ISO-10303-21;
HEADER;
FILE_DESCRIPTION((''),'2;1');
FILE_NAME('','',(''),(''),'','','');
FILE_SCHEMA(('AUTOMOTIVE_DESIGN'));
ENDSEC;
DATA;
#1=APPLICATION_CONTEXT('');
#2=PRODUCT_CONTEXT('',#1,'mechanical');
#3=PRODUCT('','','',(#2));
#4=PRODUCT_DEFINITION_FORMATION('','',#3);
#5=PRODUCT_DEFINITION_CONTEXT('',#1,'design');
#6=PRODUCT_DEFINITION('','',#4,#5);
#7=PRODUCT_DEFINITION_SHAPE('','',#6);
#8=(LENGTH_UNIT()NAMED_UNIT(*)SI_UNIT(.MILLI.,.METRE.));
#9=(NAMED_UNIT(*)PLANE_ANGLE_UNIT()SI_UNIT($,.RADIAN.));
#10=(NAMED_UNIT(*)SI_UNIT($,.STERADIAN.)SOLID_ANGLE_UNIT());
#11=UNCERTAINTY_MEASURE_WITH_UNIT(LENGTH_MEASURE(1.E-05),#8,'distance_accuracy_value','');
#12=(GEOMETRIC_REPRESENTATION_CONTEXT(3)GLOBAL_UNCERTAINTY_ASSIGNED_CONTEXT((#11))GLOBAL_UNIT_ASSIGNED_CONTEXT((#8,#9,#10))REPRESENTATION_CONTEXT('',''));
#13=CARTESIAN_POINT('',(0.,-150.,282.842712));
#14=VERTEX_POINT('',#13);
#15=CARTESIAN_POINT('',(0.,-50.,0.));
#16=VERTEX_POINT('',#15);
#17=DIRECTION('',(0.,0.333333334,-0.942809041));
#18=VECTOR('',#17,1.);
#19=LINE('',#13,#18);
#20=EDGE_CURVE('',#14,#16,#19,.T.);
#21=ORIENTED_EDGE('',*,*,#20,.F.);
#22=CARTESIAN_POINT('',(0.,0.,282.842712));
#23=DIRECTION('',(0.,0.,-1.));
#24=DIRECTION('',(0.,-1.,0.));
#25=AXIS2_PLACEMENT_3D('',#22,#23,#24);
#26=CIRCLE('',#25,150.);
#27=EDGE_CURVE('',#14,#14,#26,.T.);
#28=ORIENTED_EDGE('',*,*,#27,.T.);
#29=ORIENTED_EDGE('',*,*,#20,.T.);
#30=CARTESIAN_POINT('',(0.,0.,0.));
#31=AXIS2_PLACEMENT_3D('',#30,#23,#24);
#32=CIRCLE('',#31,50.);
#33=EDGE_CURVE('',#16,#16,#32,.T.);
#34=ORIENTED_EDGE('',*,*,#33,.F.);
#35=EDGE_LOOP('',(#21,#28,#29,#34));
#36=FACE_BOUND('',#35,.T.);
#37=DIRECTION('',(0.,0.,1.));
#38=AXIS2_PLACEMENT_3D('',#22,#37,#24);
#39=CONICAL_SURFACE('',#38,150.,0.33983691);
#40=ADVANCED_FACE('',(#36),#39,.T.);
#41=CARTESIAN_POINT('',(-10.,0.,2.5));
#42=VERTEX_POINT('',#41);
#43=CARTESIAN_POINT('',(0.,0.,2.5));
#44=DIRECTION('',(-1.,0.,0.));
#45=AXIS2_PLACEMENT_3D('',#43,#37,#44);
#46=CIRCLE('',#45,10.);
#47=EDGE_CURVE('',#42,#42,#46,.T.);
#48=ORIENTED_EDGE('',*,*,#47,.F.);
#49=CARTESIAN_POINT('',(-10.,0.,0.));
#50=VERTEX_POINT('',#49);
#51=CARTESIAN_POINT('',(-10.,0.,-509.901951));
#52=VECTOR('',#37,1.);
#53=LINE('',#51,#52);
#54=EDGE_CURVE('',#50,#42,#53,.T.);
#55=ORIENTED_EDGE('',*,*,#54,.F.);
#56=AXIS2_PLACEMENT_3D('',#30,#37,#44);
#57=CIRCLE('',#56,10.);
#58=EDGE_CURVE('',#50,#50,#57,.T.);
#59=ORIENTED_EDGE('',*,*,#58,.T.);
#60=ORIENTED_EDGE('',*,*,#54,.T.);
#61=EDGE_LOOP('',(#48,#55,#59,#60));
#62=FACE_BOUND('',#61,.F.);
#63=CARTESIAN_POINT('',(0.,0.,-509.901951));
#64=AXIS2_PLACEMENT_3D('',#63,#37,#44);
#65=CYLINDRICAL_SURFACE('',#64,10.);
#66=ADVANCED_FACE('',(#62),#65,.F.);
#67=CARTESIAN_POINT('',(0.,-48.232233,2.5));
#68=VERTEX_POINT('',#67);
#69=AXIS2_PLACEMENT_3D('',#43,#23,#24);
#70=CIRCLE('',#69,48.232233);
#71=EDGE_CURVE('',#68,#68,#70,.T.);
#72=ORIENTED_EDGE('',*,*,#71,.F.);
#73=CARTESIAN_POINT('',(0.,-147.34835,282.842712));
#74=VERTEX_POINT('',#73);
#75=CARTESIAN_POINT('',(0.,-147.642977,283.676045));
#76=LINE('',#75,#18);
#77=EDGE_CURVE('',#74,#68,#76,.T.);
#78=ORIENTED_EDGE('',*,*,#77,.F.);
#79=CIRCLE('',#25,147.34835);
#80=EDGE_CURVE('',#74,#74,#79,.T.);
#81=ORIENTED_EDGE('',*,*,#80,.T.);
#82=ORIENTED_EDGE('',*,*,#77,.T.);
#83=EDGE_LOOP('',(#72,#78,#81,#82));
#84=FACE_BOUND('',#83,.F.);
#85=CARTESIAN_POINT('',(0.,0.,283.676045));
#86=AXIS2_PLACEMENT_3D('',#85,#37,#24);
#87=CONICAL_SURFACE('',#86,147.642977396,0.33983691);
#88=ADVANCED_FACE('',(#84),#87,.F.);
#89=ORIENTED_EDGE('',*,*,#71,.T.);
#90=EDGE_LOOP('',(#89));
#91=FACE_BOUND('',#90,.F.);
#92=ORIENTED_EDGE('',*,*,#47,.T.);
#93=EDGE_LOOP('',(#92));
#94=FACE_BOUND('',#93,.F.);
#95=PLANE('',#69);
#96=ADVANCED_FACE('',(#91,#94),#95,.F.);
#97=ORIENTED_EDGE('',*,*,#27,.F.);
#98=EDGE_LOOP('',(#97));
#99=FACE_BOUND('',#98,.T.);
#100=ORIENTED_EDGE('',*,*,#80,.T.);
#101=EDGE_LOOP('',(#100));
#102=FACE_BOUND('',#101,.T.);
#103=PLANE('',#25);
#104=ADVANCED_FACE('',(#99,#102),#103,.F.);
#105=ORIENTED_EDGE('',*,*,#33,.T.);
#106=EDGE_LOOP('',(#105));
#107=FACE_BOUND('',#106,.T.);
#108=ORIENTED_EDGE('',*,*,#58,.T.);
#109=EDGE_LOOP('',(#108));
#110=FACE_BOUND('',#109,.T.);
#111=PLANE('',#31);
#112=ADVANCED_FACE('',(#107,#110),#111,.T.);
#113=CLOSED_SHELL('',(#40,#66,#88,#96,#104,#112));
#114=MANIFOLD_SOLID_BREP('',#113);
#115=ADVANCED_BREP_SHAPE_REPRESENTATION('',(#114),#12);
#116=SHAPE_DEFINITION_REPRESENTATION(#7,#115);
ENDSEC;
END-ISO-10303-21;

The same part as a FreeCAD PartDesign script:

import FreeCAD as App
import Part
import Sketcher

V = App.Vector


def faces_at(feature, points):
    """Names of the faces that lie closest to the given points."""
    faces = feature.Shape.Faces
    near = lambda p: min(range(len(faces)), key=lambda i: faces[i].distToShape(Part.Vertex(*p))[0])
    return sorted({f"Face{near(p) + 1}" for p in points})


def add_polygon(sketch, points):
    """Adds a closed chain of lines whose ends are joined by coincident constraints."""
    first, n = sketch.GeometryCount, len(points)
    for a, b in zip(points, points[1:] + points[:1]):
        sketch.addGeometry(Part.LineSegment(App.Vector(*a, 0), App.Vector(*b, 0)), False)
    for i in range(n):
        sketch.addConstraint(Sketcher.Constraint("Coincident", first + i, 2, first + (i + 1) % n, 1))

doc = App.newDocument("Part")
params = doc.addObject("Spreadsheet::Sheet", "Params")
for row, (alias, value) in enumerate([
    ("sketch1_width", "50 mm"),
    ("sketch1_width2", "150 mm"),
    ("sketch1_length", "300 mm"),
    ("revolution_angle", "360 deg"),
    ("thickness_wall", "2.5 mm"),
    ("sketch2_diameter", "20 mm"),
    ("hole_diameter", "20 mm"),
], start=1):
    params.set(f"A{row}", alias)
    params.set(f"B{row}", "=" + value)
    params.setAlias(f"B{row}", alias)

body = doc.addObject("PartDesign::Body", "Body")

# Sketch on YZ plane
sketch1 = doc.addObject("Sketcher::SketchObject", "Sketch")
body.addObject(sketch1)
sketch1.AttachmentSupport = (doc.YZ_Plane, [""])
sketch1.MapMode = "FlatFace"
add_polygon(sketch1, [(-50, 0), (0, 0), (0, 283), (-150, 283)])  # lines 0-3
sketch1.addConstraint([
    Sketcher.Constraint("Horizontal", 0),
    Sketcher.Constraint("Vertical", 1),
    Sketcher.Constraint("Horizontal", 2),
    Sketcher.Constraint("Coincident", 0, 2, -1, 1),
    Sketcher.Constraint("DistanceX", 0, 1, 0, 2, 50.0),
    Sketcher.Constraint("DistanceX", 2, 2, 2, 1, 150.0),
    Sketcher.Constraint("Distance", 3, 300.0),
])
sketch1.setExpression("Constraints[8]", "Params.sketch1_width")
sketch1.setExpression("Constraints[9]", "Params.sketch1_width2")
sketch1.setExpression("Constraints[10]", "Params.sketch1_length")
revolution = doc.addObject("PartDesign::Revolution", "Revolution")
body.addObject(revolution)
revolution.Profile = sketch1
revolution.ReferenceAxis = (sketch1, ["V_Axis"])
revolution.setExpression("Angle", "Params.revolution_angle")
doc.recompute()

thickness = doc.addObject("PartDesign::Thickness", "Thickness")
body.addObject(thickness)
thickness.Base = (revolution, faces_at(revolution, [(0, 0, 282.843)]))
thickness.setExpression("Value", "Params.thickness_wall")
thickness.Reversed = True
thickness.Join = "Arc"

# Sketch on XY plane
sketch2 = doc.addObject("Sketcher::SketchObject", "Sketch001")
body.addObject(sketch2)
sketch2.AttachmentSupport = (doc.XY_Plane, [""])
sketch2.MapMode = "FlatFace"
sketch2.addGeometry(Part.Circle(V(0, 0, 0), V(0, 0, 1), 10), False)
sketch2.addConstraint([
    Sketcher.Constraint("Coincident", 0, 3, -1, 1),
    Sketcher.Constraint("Diameter", 0, 20.0),
])
sketch2.setExpression("Constraints[1]", "Params.sketch2_diameter")
doc.recompute()
hole = doc.addObject("PartDesign::Hole", "Hole")
body.addObject(hole)
hole.Profile = sketch2
hole.ThreadType = "None"
hole.setExpression("Diameter", "Params.hole_diameter")
hole.DepthType = "ThroughAll"
hole.Reversed = True

doc.recompute()
